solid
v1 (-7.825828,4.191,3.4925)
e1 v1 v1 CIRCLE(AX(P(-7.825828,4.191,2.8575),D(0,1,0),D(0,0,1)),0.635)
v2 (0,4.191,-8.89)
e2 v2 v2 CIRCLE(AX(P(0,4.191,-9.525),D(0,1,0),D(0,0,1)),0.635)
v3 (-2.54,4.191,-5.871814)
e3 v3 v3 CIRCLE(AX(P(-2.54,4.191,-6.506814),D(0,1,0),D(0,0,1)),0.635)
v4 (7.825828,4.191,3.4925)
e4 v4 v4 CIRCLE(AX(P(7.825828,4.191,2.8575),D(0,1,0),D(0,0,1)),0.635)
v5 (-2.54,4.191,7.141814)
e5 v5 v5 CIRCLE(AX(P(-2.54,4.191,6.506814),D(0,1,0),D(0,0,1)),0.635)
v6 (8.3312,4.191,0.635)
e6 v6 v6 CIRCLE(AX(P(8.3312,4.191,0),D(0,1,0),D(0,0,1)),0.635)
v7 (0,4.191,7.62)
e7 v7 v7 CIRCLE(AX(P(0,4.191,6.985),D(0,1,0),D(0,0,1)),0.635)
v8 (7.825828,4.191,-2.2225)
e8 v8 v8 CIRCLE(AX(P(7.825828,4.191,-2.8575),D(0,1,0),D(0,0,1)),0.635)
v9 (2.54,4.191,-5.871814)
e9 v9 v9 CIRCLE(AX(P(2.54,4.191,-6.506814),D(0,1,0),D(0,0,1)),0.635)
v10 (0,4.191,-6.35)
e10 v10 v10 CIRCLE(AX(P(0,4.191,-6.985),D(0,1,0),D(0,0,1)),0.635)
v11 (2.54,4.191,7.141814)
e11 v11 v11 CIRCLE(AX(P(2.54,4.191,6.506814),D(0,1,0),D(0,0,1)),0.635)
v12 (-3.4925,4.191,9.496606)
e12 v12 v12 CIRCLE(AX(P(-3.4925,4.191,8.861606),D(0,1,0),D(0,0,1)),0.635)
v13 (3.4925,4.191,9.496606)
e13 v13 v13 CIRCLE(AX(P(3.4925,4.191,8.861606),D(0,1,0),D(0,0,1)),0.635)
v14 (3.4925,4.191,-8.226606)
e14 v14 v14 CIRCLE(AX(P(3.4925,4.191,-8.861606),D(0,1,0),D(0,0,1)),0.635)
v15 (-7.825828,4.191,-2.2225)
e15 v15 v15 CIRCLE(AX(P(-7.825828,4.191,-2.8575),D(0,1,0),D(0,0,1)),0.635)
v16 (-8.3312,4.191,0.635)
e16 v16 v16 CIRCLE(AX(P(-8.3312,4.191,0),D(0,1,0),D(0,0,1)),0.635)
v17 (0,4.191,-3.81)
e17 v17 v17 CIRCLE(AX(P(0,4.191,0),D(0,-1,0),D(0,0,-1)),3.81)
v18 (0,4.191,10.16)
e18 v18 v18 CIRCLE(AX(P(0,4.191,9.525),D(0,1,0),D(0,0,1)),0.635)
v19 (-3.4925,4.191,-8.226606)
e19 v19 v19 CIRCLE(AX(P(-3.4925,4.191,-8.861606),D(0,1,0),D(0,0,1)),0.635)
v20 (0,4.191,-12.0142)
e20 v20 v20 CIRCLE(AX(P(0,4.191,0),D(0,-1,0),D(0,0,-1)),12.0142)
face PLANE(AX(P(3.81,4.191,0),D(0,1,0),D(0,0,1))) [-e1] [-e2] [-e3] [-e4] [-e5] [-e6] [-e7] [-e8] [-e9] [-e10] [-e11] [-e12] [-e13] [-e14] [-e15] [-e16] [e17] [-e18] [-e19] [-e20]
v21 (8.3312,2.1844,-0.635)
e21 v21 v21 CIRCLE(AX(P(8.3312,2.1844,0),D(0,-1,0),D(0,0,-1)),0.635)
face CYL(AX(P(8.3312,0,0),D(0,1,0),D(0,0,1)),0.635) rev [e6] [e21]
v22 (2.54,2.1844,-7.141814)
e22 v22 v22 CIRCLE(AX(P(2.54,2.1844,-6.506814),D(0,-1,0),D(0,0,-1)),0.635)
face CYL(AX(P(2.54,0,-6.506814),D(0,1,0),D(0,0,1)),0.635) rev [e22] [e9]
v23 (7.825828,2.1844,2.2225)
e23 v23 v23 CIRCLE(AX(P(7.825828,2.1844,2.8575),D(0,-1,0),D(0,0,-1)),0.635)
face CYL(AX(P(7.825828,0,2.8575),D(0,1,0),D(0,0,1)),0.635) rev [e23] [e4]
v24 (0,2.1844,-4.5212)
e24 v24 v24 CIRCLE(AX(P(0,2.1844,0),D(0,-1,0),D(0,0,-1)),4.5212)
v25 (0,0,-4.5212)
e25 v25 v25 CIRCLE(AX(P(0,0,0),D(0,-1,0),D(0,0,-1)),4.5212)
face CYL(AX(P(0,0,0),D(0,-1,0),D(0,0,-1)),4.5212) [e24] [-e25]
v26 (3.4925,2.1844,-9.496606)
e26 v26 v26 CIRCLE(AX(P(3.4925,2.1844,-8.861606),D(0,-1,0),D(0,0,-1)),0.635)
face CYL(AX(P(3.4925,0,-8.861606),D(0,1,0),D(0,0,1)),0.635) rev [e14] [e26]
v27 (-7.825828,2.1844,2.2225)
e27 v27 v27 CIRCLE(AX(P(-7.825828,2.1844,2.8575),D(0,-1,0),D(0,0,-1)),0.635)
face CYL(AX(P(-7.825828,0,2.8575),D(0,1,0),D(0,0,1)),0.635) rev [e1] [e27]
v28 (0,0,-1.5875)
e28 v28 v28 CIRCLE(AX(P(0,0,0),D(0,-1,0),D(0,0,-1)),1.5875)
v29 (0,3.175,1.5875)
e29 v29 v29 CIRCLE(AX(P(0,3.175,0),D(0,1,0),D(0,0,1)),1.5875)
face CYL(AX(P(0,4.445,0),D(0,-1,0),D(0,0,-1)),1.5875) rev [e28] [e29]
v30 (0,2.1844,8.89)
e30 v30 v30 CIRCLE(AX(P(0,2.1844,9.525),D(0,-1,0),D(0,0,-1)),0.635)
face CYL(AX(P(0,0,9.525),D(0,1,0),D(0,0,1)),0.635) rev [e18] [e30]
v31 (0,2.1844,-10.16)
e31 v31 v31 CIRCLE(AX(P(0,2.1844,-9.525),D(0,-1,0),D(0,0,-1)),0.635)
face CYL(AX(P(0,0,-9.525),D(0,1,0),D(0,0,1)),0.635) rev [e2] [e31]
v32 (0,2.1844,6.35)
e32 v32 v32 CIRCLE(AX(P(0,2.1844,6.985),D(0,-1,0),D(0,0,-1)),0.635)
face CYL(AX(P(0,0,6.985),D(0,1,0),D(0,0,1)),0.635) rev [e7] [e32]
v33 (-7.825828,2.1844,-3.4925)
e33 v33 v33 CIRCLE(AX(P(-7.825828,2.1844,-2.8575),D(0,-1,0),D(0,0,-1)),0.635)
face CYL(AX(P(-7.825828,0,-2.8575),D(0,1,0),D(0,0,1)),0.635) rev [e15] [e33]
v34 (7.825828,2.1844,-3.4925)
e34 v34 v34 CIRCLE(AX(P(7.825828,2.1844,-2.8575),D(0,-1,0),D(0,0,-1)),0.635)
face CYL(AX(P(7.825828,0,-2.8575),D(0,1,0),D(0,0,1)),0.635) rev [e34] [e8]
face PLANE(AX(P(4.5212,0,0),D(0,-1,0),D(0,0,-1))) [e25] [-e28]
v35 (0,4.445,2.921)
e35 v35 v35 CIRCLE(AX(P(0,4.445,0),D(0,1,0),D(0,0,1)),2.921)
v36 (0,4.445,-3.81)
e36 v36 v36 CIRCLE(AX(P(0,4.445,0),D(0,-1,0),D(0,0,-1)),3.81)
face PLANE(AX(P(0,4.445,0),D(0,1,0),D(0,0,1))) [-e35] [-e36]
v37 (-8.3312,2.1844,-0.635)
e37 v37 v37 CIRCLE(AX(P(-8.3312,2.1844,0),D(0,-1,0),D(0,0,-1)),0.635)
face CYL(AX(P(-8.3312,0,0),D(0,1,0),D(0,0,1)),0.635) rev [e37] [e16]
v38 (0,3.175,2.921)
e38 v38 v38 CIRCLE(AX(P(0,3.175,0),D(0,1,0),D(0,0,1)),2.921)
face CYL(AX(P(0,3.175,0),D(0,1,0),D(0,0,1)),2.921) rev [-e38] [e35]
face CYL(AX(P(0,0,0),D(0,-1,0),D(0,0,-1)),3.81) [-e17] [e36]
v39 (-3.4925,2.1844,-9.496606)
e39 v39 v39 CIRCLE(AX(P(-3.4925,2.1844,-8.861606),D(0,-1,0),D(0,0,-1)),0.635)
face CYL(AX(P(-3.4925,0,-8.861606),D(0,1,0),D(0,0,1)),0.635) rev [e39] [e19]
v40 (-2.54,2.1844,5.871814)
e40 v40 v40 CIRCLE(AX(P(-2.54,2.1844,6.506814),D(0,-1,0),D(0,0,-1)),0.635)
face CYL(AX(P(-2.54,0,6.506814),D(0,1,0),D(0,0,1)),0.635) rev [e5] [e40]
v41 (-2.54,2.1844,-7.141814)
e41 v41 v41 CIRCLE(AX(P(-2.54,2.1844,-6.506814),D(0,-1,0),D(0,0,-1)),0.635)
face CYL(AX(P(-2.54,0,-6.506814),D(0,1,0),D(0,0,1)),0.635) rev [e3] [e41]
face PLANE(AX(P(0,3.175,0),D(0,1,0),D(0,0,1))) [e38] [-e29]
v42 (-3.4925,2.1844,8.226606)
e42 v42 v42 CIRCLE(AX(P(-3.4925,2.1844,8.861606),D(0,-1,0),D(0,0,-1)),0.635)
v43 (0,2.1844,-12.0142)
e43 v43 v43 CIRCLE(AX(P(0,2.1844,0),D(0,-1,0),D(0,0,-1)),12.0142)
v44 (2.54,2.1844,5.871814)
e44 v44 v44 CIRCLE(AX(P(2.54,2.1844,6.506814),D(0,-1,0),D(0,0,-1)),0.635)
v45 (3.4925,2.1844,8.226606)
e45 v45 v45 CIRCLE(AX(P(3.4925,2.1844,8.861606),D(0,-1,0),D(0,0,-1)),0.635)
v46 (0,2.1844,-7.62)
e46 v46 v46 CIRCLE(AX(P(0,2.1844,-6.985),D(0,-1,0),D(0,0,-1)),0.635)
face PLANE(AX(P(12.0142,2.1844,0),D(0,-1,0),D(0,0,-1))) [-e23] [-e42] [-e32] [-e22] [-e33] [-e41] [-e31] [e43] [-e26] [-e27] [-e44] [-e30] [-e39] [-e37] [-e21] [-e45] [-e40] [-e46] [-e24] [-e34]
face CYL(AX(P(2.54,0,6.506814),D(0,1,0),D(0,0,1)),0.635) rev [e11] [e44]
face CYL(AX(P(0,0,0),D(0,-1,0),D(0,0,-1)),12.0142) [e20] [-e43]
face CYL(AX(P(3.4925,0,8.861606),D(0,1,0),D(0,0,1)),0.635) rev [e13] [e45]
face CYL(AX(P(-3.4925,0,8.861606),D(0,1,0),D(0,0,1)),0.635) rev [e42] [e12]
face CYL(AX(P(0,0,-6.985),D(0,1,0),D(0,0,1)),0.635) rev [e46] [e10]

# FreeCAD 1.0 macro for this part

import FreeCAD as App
import Part
import Sketcher
Q = App.Units.Quantity

doc = App.newDocument("Part")
body = doc.addObject("PartDesign::Body", "Body")

# Sketch on XY plane
sketch1 = body.newObject("Sketcher::SketchObject", "Sketch")
sketch1.AttachmentSupport = (doc.getObject("XY_Plane"), [""])
sketch1.MapMode = "FlatFace"
sketch1.addGeometry([
    Part.LineSegment(App.Vector(0, 4.445, 0), App.Vector(0, 0, 0)),  # 0
    Part.LineSegment(App.Vector(0, 0, 0), App.Vector(4.5212, 0, 0)),  # 1
    Part.LineSegment(App.Vector(4.5212, 0, 0), App.Vector(4.5212, 2.1844, 0)),  # 2
    Part.LineSegment(App.Vector(4.5212, 2.1844, 0), App.Vector(12.0142, 2.1844, 0)),  # 3
    Part.LineSegment(App.Vector(12.0142, 2.1844, 0), App.Vector(12.0142, 4.191, 0)),  # 4
    Part.LineSegment(App.Vector(12.0142, 4.191, 0), App.Vector(3.81, 4.191, 0)),  # 5
    Part.LineSegment(App.Vector(3.81, 4.191, 0), App.Vector(3.81, 4.445, 0)),  # 6
    Part.LineSegment(App.Vector(3.81, 4.445, 0), App.Vector(0, 4.445, 0)),  # 7
], False)
sketch1.addConstraint([
    Sketcher.Constraint("Coincident", 0, 2, 1, 1),
    Sketcher.Constraint("Coincident", 1, 2, 2, 1),
    Sketcher.Constraint("Coincident", 2, 2, 3, 1),
    Sketcher.Constraint("Coincident", 3, 2, 4, 1),
    Sketcher.Constraint("Coincident", 4, 2, 5, 1),
    Sketcher.Constraint("Coincident", 5, 2, 6, 1),
    Sketcher.Constraint("Coincident", 6, 2, 7, 1),
    Sketcher.Constraint("Coincident", 7, 2, 0, 1),
    Sketcher.Constraint("Vertical", 0),
    Sketcher.Constraint("Horizontal", 1),
    Sketcher.Constraint("Vertical", 2),
    Sketcher.Constraint("Horizontal", 3),
    Sketcher.Constraint("Vertical", 4),
    Sketcher.Constraint("Horizontal", 5),
    Sketcher.Constraint("Vertical", 6),
    Sketcher.Constraint("Horizontal", 7),
    Sketcher.Constraint("Coincident", 0, 2, -1, 1),
    Sketcher.Constraint("DistanceX", 7, 2, 7, 1, Q("0.15 in")),
    Sketcher.Constraint("DistanceY", 6, 1, 6, 2, Q("0.01 in")),
    Sketcher.Constraint("DistanceX", 1, 1, 1, 2, Q("0.178 in")),
    Sketcher.Constraint("DistanceX", 3, 1, 3, 2, Q("0.295 in")),
    Sketcher.Constraint("DistanceY", 0, 2, 0, 1, Q("0.175 in")),
    Sketcher.Constraint("DistanceY", 2, 1, 2, 2, Q("0.086 in")),
])
revolution = body.newObject("PartDesign::Revolution", "Revolution")
revolution.Profile = sketch1
revolution.ReferenceAxis = (sketch1, ["V_Axis"])
revolution.Angle = 360

# Sketch on XZ plane
sketch2 = body.newObject("Sketcher::SketchObject", "Sketch001")
sketch2.AttachmentSupport = (doc.getObject("XZ_Plane"), [""])
sketch2.MapMode = "FlatFace"
sketch2.AttachmentOffset = App.Placement(App.Vector(0, 0, -0.175 * 25.4), App.Rotation())
sketch2.addGeometry(Part.Circle(App.Vector(0, 0, 0), App.Vector(0, 0, 1), 2.921), False)
sketch2.addConstraint([
    Sketcher.Constraint("Coincident", 0, 3, -1, 1),
    Sketcher.Constraint("Diameter", 0, Q("0.23 in")),
])
pocket1 = body.newObject("PartDesign::Pocket", "Pocket")
pocket1.Profile = sketch2
pocket1.Length = Q("0.05 in")
pocket1.Reversed = True

# Sketch on XZ plane
sketch3 = body.newObject("Sketcher::SketchObject", "Sketch002")
sketch3.AttachmentSupport = (doc.getObject("XZ_Plane"), [""])
sketch3.MapMode = "FlatFace"
sketch3.addGeometry(Part.Circle(App.Vector(0, 0, 0), App.Vector(0, 0, 1), 1.5875), False)
sketch3.addConstraint([
    Sketcher.Constraint("Coincident", 0, 3, -1, 1),
    Sketcher.Constraint("Diameter", 0, Q("0.125 in")),
])
pocket2 = body.newObject("PartDesign::Pocket", "Pocket001")
pocket2.Profile = sketch3
pocket2.Type = "ThroughAll"

# Sketch on XZ plane
sketch4 = body.newObject("Sketcher::SketchObject", "Sketch003")
sketch4.AttachmentSupport = (doc.getObject("XZ_Plane"), [""])
sketch4.MapMode = "FlatFace"
sketch4.AttachmentOffset = App.Placement(App.Vector(0, 0, -0.165 * 25.4), App.Rotation())
sketch4.addGeometry([
    Part.Circle(App.Vector(0, -6.985, 0), App.Vector(0, 0, 1), 0.635),  # 0
    Part.Circle(App.Vector(-7.825828, -2.8575, 0), App.Vector(0, 0, 1), 0.635),  # 1
    Part.Circle(App.Vector(-8.3312, 0, 0), App.Vector(0, 0, 1), 0.635),  # 2
    Part.Circle(App.Vector(-7.825828, 2.8575, 0), App.Vector(0, 0, 1), 0.635),  # 3
    Part.Circle(App.Vector(7.825828, -2.8575, 0), App.Vector(0, 0, 1), 0.635),  # 4
    Part.Circle(App.Vector(8.3312, 0, 0), App.Vector(0, 0, 1), 0.635),  # 5
    Part.Circle(App.Vector(7.825828, 2.8575, 0), App.Vector(0, 0, 1), 0.635),  # 6
    Part.Circle(App.Vector(2.54, -6.506814, 0), App.Vector(0, 0, 1), 0.635),  # 7
    Part.Circle(App.Vector(-2.54, -6.506814, 0), App.Vector(0, 0, 1), 0.635),  # 8
    Part.Circle(App.Vector(2.54, 6.506814, 0), App.Vector(0, 0, 1), 0.635),  # 9
    Part.Circle(App.Vector(0, 6.985, 0), App.Vector(0, 0, 1), 0.635),  # 10
    Part.Circle(App.Vector(-2.54, 6.506814, 0), App.Vector(0, 0, 1), 0.635),  # 11
], False)
sketch4.addConstraint([
    Sketcher.Constraint("Equal", 0, 1),
    Sketcher.Constraint("Equal", 1, 2),
    Sketcher.Constraint("Equal", 2, 3),
    Sketcher.Constraint("Equal", 3, 4),
    Sketcher.Constraint("Equal", 4, 5),
    Sketcher.Constraint("Equal", 5, 6),
    Sketcher.Constraint("Equal", 6, 7),
    Sketcher.Constraint("Equal", 7, 8),
    Sketcher.Constraint("Equal", 8, 9),
    Sketcher.Constraint("Equal", 9, 10),
    Sketcher.Constraint("Equal", 10, 11),
    Sketcher.Constraint("Symmetric", 3, 3, 4, 3, -1, 1),
    Sketcher.Constraint("Symmetric", 2, 3, 5, 3, -1, 1),
    Sketcher.Constraint("Symmetric", 1, 3, 6, 3, -1, 1),
    Sketcher.Constraint("Symmetric", 8, 3, 9, 3, -1, 1),
    Sketcher.Constraint("Symmetric", 0, 3, 10, 3, -1, 1),
    Sketcher.Constraint("Symmetric", 7, 3, 11, 3, -1, 1),
    Sketcher.Constraint("Symmetric", 1, 3, 4, 3, -2),
    Sketcher.Constraint("Symmetric", 7, 3, 8, 3, -2),
    Sketcher.Constraint("PointOnObject", 0, 3, -2),
    Sketcher.Constraint("PointOnObject", 2, 3, -1),
    Sketcher.Constraint("Diameter", 0, Q("0.05 in")),
    Sketcher.Constraint("DistanceX", -1, 1, 7, 3, Q("0.1 in")),
    Sketcher.Constraint("DistanceY", 0, 3, -1, 1, Q("0.275 in")),
    Sketcher.Constraint("DistanceX", 2, 3, -1, 1, Q("0.328 in")),
    Sketcher.Constraint("DistanceY", 1, 3, 3, 3, Q("0.225 in")),
    Sketcher.Constraint("DistanceX", 1, 3, -1, 1, Q("7.825828 mm")),
    Sketcher.Constraint("DistanceY", 7, 3, -1, 1, Q("6.506814 mm")),
])
pocket3 = body.newObject("PartDesign::Pocket", "Pocket002")
pocket3.Profile = sketch4
pocket3.Type = "ThroughAll"
pocket3.Reversed = True

# Sketch on XZ plane
sketch5 = body.newObject("Sketcher::SketchObject", "Sketch004")
sketch5.AttachmentSupport = (doc.getObject("XZ_Plane"), [""])
sketch5.MapMode = "FlatFace"
sketch5.AttachmentOffset = App.Placement(App.Vector(0, 0, -0.165 * 25.4), App.Rotation())
sketch5.addGeometry([
    Part.Circle(App.Vector(0, -9.525, 0), App.Vector(0, 0, 1), 0.635),  # 0
    Part.Circle(App.Vector(3.4925, -8.861606, 0), App.Vector(0, 0, 1), 0.635),  # 1
    Part.Circle(App.Vector(-3.4925, -8.861606, 0), App.Vector(0, 0, 1), 0.635),  # 2
    Part.Circle(App.Vector(3.4925, 8.861606, 0), App.Vector(0, 0, 1), 0.635),  # 3
    Part.Circle(App.Vector(0, 9.525, 0), App.Vector(0, 0, 1), 0.635),  # 4
    Part.Circle(App.Vector(-3.4925, 8.861606, 0), App.Vector(0, 0, 1), 0.635),  # 5
], False)
sketch5.addConstraint([
    Sketcher.Constraint("Equal", 0, 1),
    Sketcher.Constraint("Equal", 1, 2),
    Sketcher.Constraint("Equal", 2, 3),
    Sketcher.Constraint("Equal", 3, 4),
    Sketcher.Constraint("Equal", 4, 5),
    Sketcher.Constraint("Symmetric", 2, 3, 3, 3, -1, 1),
    Sketcher.Constraint("Symmetric", 0, 3, 4, 3, -1, 1),
    Sketcher.Constraint("Symmetric", 1, 3, 5, 3, -1, 1),
    Sketcher.Constraint("Symmetric", 1, 3, 2, 3, -2),
    Sketcher.Constraint("PointOnObject", 0, 3, -2),
    Sketcher.Constraint("Diameter", 0, Q("0.05 in")),
    Sketcher.Constraint("DistanceY", 0, 3, 4, 3, Q("0.75 in")),
    Sketcher.Constraint("DistanceX", 2, 3, 1, 3, Q("0.275 in")),
    Sketcher.Constraint("DistanceY", 1, 3, -1, 1, Q("8.861606 mm")),
])
pocket4 = body.newObject("PartDesign::Pocket", "Pocket003")
pocket4.Profile = sketch5
pocket4.Type = "ThroughAll"
pocket4.Reversed = True

doc.recompute()
